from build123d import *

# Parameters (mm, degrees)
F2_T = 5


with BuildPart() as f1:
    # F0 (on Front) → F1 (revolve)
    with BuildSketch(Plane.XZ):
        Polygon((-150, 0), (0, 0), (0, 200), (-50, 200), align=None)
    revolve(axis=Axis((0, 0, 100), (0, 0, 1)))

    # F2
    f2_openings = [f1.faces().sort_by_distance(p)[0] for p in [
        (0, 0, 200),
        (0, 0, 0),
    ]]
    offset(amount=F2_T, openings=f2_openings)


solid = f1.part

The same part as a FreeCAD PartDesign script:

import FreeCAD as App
import Part
import Sketcher
Q = App.Units.Quantity


def faces_at(feature, points):
    """Names of the faces that lie closest to the given points."""
    faces = feature.Shape.Faces
    near = lambda p: min(range(len(faces)), key=lambda i: faces[i].distToShape(Part.Vertex(*p))[0])
    return sorted({f"Face{near(p) + 1}" for p in points})


def add_polygon(sketch, points):
    """Adds a closed chain of lines whose ends are joined by coincident constraints."""
    first, n = sketch.GeometryCount, len(points)
    for a, b in zip(points, points[1:] + points[:1]):
        sketch.addGeometry(Part.LineSegment(App.Vector(*a, 0), App.Vector(*b, 0)), False)
    for i in range(n):
        sketch.addConstraint(Sketcher.Constraint("Coincident", first + i, 2, first + (i + 1) % n, 1))

doc = App.newDocument("Part")
body = doc.addObject("PartDesign::Body", "Body")

# Sketch on XZ plane
sketch1 = body.newObject("Sketcher::SketchObject", "Sketch")
sketch1.AttachmentSupport = (doc.getObject("XZ_Plane"), [""])
sketch1.MapMode = "FlatFace"
add_polygon(sketch1, [(-150, 0), (0, 0), (0, 200), (-50, 200)])  # lines 0-3
sketch1.addConstraint(Sketcher.Constraint("Horizontal", 0))
sketch1.addConstraint(Sketcher.Constraint("Vertical", 1))
sketch1.addConstraint(Sketcher.Constraint("Horizontal", 2))
sketch1.addConstraint(Sketcher.Constraint("Coincident", 0, 2, -1, 1))
sketch1.addConstraint(Sketcher.Constraint("DistanceX", 0, 1, 0, 2, Q("150 mm")))
sketch1.addConstraint(Sketcher.Constraint("DistanceX", 2, 2, 2, 1, Q("50 mm")))
sketch1.addConstraint(Sketcher.Constraint("DistanceY", 1, 1, 1, 2, Q("200 mm")))
revolution = body.newObject("PartDesign::Revolution", "Revolution")
revolution.Profile = sketch1
revolution.ReferenceAxis = (sketch1, ["V_Axis"])
revolution.Angle = 360
doc.recompute()

thickness = body.newObject("PartDesign::Thickness", "Thickness")
thickness.Base = (revolution, faces_at(revolution, [(0, 0, 200), (0, 0, 0)]))
thickness.Value = 5
thickness.Reversed = False
thickness.Join = "Arc"

doc.recompute()
